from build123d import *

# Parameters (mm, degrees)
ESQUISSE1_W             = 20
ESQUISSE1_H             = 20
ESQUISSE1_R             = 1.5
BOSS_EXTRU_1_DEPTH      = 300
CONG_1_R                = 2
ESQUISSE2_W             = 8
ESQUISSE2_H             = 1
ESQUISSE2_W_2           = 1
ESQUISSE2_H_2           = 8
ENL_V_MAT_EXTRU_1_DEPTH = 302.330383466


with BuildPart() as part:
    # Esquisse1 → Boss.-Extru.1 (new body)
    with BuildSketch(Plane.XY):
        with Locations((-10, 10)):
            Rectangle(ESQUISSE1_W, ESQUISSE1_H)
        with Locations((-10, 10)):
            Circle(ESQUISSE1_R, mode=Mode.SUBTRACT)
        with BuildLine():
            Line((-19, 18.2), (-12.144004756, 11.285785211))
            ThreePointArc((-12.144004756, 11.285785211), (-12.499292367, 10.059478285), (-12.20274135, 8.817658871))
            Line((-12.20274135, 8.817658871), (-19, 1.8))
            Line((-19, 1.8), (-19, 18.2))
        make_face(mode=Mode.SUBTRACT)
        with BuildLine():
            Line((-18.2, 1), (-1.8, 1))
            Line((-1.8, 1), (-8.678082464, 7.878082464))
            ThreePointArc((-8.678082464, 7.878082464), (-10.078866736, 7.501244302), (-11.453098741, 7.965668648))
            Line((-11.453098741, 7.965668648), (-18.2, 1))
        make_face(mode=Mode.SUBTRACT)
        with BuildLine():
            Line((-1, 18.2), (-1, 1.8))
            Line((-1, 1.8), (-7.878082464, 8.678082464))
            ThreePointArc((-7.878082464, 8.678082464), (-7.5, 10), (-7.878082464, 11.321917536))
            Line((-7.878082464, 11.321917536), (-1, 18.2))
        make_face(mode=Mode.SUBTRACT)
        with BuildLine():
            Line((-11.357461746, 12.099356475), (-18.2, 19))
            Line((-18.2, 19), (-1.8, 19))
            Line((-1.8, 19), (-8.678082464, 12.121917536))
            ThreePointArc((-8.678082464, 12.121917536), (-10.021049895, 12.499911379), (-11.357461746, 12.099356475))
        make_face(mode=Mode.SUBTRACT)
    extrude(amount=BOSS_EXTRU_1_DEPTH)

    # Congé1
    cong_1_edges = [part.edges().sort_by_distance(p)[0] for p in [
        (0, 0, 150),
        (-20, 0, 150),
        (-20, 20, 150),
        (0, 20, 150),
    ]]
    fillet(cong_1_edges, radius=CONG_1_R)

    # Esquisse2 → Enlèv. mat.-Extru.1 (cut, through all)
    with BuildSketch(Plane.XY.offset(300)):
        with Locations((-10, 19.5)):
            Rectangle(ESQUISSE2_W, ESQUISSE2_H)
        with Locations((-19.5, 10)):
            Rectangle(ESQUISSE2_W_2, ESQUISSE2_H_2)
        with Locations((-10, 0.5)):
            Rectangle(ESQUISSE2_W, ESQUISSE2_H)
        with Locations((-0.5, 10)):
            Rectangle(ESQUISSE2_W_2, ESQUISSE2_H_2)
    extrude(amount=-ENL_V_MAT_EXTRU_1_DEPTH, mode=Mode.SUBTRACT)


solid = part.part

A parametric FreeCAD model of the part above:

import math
import FreeCAD as App
import Part
import Sketcher

V = App.Vector
Q = App.Units.Quantity


def edges_at(feature, points):
    """Names of the edges that pass closest to the given points."""
    edges = feature.Shape.Edges
    near = lambda p: min(range(len(edges)), key=lambda i: edges[i].distToShape(Part.Vertex(*p))[0])
    return sorted({f"Edge{near(p) + 1}" for p in points})

doc = App.newDocument("Part")
body = doc.addObject("PartDesign::Body", "Body")

# Sketch on XY plane
sketch1 = doc.addObject("Sketcher::SketchObject", "Sketch")
body.addObject(sketch1)
sketch1.AttachmentSupport = (doc.XY_Plane, [""])
sketch1.MapMode = "FlatFace"
sketch1.addGeometry([
    Part.LineSegment(V(-20, 20, 0), V(-20, 0, 0)),  # 0
    Part.LineSegment(V(-20, 0, 0), V(0, 0, 0)),  # 1
    Part.LineSegment(V(0, 0, 0), V(0, 20, 0)),  # 2
    Part.LineSegment(V(0, 20, 0), V(-20, 20, 0)),  # 3
    Part.LineSegment(V(-1.8, 1, 0), V(-18.2, 1, 0)),  # 4
    Part.LineSegment(V(-18.2, 1, 0), V(-11.5, 8, 0)),  # 5
    Part.ArcOfCircle(Part.Circle(V(-10, 10, 0), V(0, 0, 1), 2.5), math.radians(-126), math.radians(-58)),  # 6
    Part.LineSegment(V(-8.7, 7.9, 0), V(-1.8, 1, 0)),  # 7
    Part.LineSegment(V(-19, 1.8, 0), V(-19, 18.2, 0)),  # 8
    Part.LineSegment(V(-19, 18.2, 0), V(-12.1, 11.3, 0)),  # 9
    Part.ArcOfCircle(Part.Circle(V(-10, 10, 0), V(0, 0, 1), 2.5), math.radians(149), math.radians(208)),  # 10
    Part.LineSegment(V(-12.2, 8.8, 0), V(-19, 1.8, 0)),  # 11
    Part.Circle(V(-10, 10, 0), V(0, 0, 1), 1.5),  # 12
    Part.LineSegment(V(-7.9, 11.3, 0), V(-1, 18.2, 0)),  # 13
    Part.LineSegment(V(-1, 18.2, 0), V(-1, 1.8, 0)),  # 14
    Part.LineSegment(V(-1, 1.8, 0), V(-7.9, 8.7, 0)),  # 15
    Part.ArcOfCircle(Part.Circle(V(-10, 10, 0), V(0, 0, 1), 2.5), math.radians(-32), math.radians(32)),  # 16
    Part.ArcOfCircle(Part.Circle(V(-10, 10, 0), V(0, 0, 1), 2.5), math.radians(58), math.radians(123)),  # 17
    Part.LineSegment(V(-11.4, 12.1, 0), V(-18.2, 19, 0)),  # 18
    Part.LineSegment(V(-18.2, 19, 0), V(-1.8, 19, 0)),  # 19
    Part.LineSegment(V(-1.8, 19, 0), V(-8.7, 12.1, 0)),  # 20
], False)
sketch1.addConstraint([
    Sketcher.Constraint("Coincident", 0, 2, 1, 1),
    Sketcher.Constraint("Coincident", 1, 2, 2, 1),
    Sketcher.Constraint("Coincident", 2, 2, 3, 1),
    Sketcher.Constraint("Coincident", 3, 2, 0, 1),
    Sketcher.Constraint("Coincident", 4, 2, 5, 1),
    Sketcher.Constraint("Coincident", 5, 2, 6, 1),
    Sketcher.Constraint("Coincident", 6, 2, 7, 1),
    Sketcher.Constraint("Coincident", 7, 2, 4, 1),
    Sketcher.Constraint("Coincident", 8, 2, 9, 1),
    Sketcher.Constraint("Coincident", 9, 2, 10, 1),
    Sketcher.Constraint("Coincident", 10, 2, 11, 1),
    Sketcher.Constraint("Coincident", 11, 2, 8, 1),
    Sketcher.Constraint("Coincident", 13, 2, 14, 1),
    Sketcher.Constraint("Coincident", 14, 2, 15, 1),
    Sketcher.Constraint("Coincident", 15, 2, 16, 1),
    Sketcher.Constraint("Coincident", 16, 2, 13, 1),
    Sketcher.Constraint("Coincident", 17, 2, 18, 1),
    Sketcher.Constraint("Coincident", 18, 2, 19, 1),
    Sketcher.Constraint("Coincident", 19, 2, 20, 1),
    Sketcher.Constraint("Coincident", 20, 2, 17, 1),
    Sketcher.Constraint("Vertical", 0),
    Sketcher.Constraint("Horizontal", 1),
    Sketcher.Constraint("Vertical", 2),
    Sketcher.Constraint("Horizontal", 3),
    Sketcher.Constraint("Horizontal", 4),
    Sketcher.Constraint("Vertical", 8),
    Sketcher.Constraint("Vertical", 14),
    Sketcher.Constraint("Horizontal", 19),
    Sketcher.Constraint("Coincident", 1, 2, -1, 1),
    Sketcher.Constraint("Coincident", 10, 3, 6, 3),
    Sketcher.Constraint("Coincident", 12, 3, 6, 3),
    Sketcher.Constraint("Coincident", 16, 3, 6, 3),
    Sketcher.Constraint("Coincident", 17, 3, 6, 3),
    Sketcher.Constraint("Equal", 6, 10),
    Sketcher.Constraint("Equal", 10, 16),
    Sketcher.Constraint("Equal", 16, 17),
    Sketcher.Constraint("Parallel", 5, 11),
    Sketcher.Constraint("Perpendicular", 7, 13),
    Sketcher.Constraint("Perpendicular", 13, 15),
    Sketcher.Constraint("Parallel", 9, 18),
    Sketcher.Constraint("Perpendicular", 15, 20),
    Sketcher.Constraint("Horizontal", 8, 2, 13, 2),
    Sketcher.Constraint("Horizontal", 11, 2, 14, 2),
    Sketcher.Constraint("Vertical", 15, 2, 16, 2),
    Sketcher.Constraint("Vertical", 4, 2, 18, 2),
    Sketcher.Constraint("Vertical", 7, 2, 19, 2),
    Sketcher.Constraint("Vertical", 6, 2, 20, 2),
    Sketcher.Constraint("Equal", 3, 0),
    Sketcher.Constraint("Equal", 19, 8),
    Sketcher.Constraint("Equal", 7, 13),
    Sketcher.Constraint("Equal", 13, 15),
    Sketcher.Constraint("Diameter", 12, Q("3 mm")),
    Sketcher.Constraint("Radius", 6, Q("2.5 mm")),
    Sketcher.Constraint("DistanceX", 1, 1, 1, 2, Q("20 mm")),
    Sketcher.Constraint("DistanceX", 4, 2, 4, 1, Q("16.4 mm")),
    Sketcher.Constraint("DistanceX", 6, 3, -1, 1, Q("10 mm")),
    Sketcher.Constraint("DistanceY", -1, 1, 6, 3, Q("10 mm")),
    Sketcher.Constraint("DistanceY", -1, 1, 4, 2, Q("1 mm")),
    Sketcher.Constraint("DistanceX", 8, 2, -1, 1, Q("19 mm")),
    Sketcher.Constraint("DistanceX", 13, 2, -1, 1, Q("1 mm")),
    Sketcher.Constraint("DistanceX", 5, 2, -1, 1, Q("11.453099 mm")),
    Sketcher.Constraint("DistanceX", 17, 2, -1, 1, Q("11.357462 mm")),
])
pad1 = doc.addObject("PartDesign::Pad", "Pad")
body.addObject(pad1)
pad1.Profile = sketch1
pad1.Length = 300
doc.recompute()

fillet = doc.addObject("PartDesign::Fillet", "Fillet")
body.addObject(fillet)
fillet.Base = (pad1, edges_at(pad1, [
    (0, 0, 150),
    (-20, 0, 150),
    (-20, 20, 150),
    (0, 20, 150),
]))
fillet.Radius = 2

# Sketch on XY plane
sketch2 = doc.addObject("Sketcher::SketchObject", "Sketch001")
body.addObject(sketch2)
sketch2.AttachmentSupport = (doc.XY_Plane, [""])
sketch2.MapMode = "FlatFace"
sketch2.AttachmentOffset = App.Placement(V(0, 0, 300), App.Rotation())
sketch2.addGeometry([
    Part.LineSegment(V(-14, 20, 0), V(-14, 19, 0)),  # 0
    Part.LineSegment(V(-14, 19, 0), V(-6, 19, 0)),  # 1
    Part.LineSegment(V(-6, 19, 0), V(-6, 20, 0)),  # 2
    Part.LineSegment(V(-6, 20, 0), V(-14, 20, 0)),  # 3
    Part.LineSegment(V(-20, 14, 0), V(-20, 6, 0)),  # 4
    Part.LineSegment(V(-20, 6, 0), V(-19, 6, 0)),  # 5
    Part.LineSegment(V(-19, 6, 0), V(-19, 14, 0)),  # 6
    Part.LineSegment(V(-19, 14, 0), V(-20, 14, 0)),  # 7
    Part.LineSegment(V(-14, 1, 0), V(-14, 0, 0)),  # 8
    Part.LineSegment(V(-14, 0, 0), V(-6, 0, 0)),  # 9
    Part.LineSegment(V(-6, 0, 0), V(-6, 1, 0)),  # 10
    Part.LineSegment(V(-6, 1, 0), V(-14, 1, 0)),  # 11
    Part.LineSegment(V(-1, 14, 0), V(-1, 6, 0)),  # 12
    Part.LineSegment(V(-1, 6, 0), V(0, 6, 0)),  # 13
    Part.LineSegment(V(0, 6, 0), V(0, 14, 0)),  # 14
    Part.LineSegment(V(0, 14, 0), V(-1, 14, 0)),  # 15
], False)
sketch2.addConstraint([
    Sketcher.Constraint("Coincident", 0, 2, 1, 1),
    Sketcher.Constraint("Coincident", 1, 2, 2, 1),
    Sketcher.Constraint("Coincident", 2, 2, 3, 1),
    Sketcher.Constraint("Coincident", 3, 2, 0, 1),
    Sketcher.Constraint("Coincident", 4, 2, 5, 1),
    Sketcher.Constraint("Coincident", 5, 2, 6, 1),
    Sketcher.Constraint("Coincident", 6, 2, 7, 1),
    Sketcher.Constraint("Coincident", 7, 2, 4, 1),
    Sketcher.Constraint("Coincident", 8, 2, 9, 1),
    Sketcher.Constraint("Coincident", 9, 2, 10, 1),
    Sketcher.Constraint("Coincident", 10, 2, 11, 1),
    Sketcher.Constraint("Coincident", 11, 2, 8, 1),
    Sketcher.Constraint("Coincident", 12, 2, 13, 1),
    Sketcher.Constraint("Coincident", 13, 2, 14, 1),
    Sketcher.Constraint("Coincident", 14, 2, 15, 1),
    Sketcher.Constraint("Coincident", 15, 2, 12, 1),
    Sketcher.Constraint("Vertical", 0),
    Sketcher.Constraint("Horizontal", 1),
    Sketcher.Constraint("Vertical", 2),
    Sketcher.Constraint("Horizontal", 3),
    Sketcher.Constraint("Vertical", 4),
    Sketcher.Constraint("Horizontal", 5),
    Sketcher.Constraint("Vertical", 6),
    Sketcher.Constraint("Horizontal", 7),
    Sketcher.Constraint("Vertical", 8),
    Sketcher.Constraint("Horizontal", 9),
    Sketcher.Constraint("Vertical", 10),
    Sketcher.Constraint("Horizontal", 11),
    Sketcher.Constraint("Vertical", 12),
    Sketcher.Constraint("Horizontal", 13),
    Sketcher.Constraint("Vertical", 14),
    Sketcher.Constraint("Horizontal", 15),
    Sketcher.Constraint("PointOnObject", 8, 2, -1),
    Sketcher.Constraint("PointOnObject", 13, 2, -2),
    Sketcher.Constraint("Horizontal", 5, 2, 12, 2),
    Sketcher.Constraint("Horizontal", 7, 2, 14, 2),
    Sketcher.Constraint("Vertical", 3, 2, 8, 2),
    Sketcher.Constraint("Vertical", 2, 2, 9, 2),
    Sketcher.Constraint("Equal", 7, 13),
    Sketcher.Constraint("Equal", 15, 0),
    Sketcher.Constraint("Equal", 11, 4),
    Sketcher.Constraint("Equal", 2, 8),
    Sketcher.Constraint("DistanceX", 1, 1, 1, 2, Q("8 mm")),
    Sketcher.Constraint("DistanceX", 5, 1, 5, 2, Q("1 mm")),
    Sketcher.Constraint("DistanceX", 0, 2, -1, 1, Q("14 mm")),
    Sketcher.Constraint("DistanceY", -1, 1, 0, 2, Q("19 mm")),
    Sketcher.Constraint("DistanceX", 4, 2, -1, 1, Q("20 mm")),
    Sketcher.Constraint("DistanceY", -1, 1, 4, 2, Q("6 mm")),
])
pocket1 = doc.addObject("PartDesign::Pocket", "Pocket")
body.addObject(pocket1)
pocket1.Profile = sketch2
pocket1.Type = "ThroughAll"

doc.recompute()
